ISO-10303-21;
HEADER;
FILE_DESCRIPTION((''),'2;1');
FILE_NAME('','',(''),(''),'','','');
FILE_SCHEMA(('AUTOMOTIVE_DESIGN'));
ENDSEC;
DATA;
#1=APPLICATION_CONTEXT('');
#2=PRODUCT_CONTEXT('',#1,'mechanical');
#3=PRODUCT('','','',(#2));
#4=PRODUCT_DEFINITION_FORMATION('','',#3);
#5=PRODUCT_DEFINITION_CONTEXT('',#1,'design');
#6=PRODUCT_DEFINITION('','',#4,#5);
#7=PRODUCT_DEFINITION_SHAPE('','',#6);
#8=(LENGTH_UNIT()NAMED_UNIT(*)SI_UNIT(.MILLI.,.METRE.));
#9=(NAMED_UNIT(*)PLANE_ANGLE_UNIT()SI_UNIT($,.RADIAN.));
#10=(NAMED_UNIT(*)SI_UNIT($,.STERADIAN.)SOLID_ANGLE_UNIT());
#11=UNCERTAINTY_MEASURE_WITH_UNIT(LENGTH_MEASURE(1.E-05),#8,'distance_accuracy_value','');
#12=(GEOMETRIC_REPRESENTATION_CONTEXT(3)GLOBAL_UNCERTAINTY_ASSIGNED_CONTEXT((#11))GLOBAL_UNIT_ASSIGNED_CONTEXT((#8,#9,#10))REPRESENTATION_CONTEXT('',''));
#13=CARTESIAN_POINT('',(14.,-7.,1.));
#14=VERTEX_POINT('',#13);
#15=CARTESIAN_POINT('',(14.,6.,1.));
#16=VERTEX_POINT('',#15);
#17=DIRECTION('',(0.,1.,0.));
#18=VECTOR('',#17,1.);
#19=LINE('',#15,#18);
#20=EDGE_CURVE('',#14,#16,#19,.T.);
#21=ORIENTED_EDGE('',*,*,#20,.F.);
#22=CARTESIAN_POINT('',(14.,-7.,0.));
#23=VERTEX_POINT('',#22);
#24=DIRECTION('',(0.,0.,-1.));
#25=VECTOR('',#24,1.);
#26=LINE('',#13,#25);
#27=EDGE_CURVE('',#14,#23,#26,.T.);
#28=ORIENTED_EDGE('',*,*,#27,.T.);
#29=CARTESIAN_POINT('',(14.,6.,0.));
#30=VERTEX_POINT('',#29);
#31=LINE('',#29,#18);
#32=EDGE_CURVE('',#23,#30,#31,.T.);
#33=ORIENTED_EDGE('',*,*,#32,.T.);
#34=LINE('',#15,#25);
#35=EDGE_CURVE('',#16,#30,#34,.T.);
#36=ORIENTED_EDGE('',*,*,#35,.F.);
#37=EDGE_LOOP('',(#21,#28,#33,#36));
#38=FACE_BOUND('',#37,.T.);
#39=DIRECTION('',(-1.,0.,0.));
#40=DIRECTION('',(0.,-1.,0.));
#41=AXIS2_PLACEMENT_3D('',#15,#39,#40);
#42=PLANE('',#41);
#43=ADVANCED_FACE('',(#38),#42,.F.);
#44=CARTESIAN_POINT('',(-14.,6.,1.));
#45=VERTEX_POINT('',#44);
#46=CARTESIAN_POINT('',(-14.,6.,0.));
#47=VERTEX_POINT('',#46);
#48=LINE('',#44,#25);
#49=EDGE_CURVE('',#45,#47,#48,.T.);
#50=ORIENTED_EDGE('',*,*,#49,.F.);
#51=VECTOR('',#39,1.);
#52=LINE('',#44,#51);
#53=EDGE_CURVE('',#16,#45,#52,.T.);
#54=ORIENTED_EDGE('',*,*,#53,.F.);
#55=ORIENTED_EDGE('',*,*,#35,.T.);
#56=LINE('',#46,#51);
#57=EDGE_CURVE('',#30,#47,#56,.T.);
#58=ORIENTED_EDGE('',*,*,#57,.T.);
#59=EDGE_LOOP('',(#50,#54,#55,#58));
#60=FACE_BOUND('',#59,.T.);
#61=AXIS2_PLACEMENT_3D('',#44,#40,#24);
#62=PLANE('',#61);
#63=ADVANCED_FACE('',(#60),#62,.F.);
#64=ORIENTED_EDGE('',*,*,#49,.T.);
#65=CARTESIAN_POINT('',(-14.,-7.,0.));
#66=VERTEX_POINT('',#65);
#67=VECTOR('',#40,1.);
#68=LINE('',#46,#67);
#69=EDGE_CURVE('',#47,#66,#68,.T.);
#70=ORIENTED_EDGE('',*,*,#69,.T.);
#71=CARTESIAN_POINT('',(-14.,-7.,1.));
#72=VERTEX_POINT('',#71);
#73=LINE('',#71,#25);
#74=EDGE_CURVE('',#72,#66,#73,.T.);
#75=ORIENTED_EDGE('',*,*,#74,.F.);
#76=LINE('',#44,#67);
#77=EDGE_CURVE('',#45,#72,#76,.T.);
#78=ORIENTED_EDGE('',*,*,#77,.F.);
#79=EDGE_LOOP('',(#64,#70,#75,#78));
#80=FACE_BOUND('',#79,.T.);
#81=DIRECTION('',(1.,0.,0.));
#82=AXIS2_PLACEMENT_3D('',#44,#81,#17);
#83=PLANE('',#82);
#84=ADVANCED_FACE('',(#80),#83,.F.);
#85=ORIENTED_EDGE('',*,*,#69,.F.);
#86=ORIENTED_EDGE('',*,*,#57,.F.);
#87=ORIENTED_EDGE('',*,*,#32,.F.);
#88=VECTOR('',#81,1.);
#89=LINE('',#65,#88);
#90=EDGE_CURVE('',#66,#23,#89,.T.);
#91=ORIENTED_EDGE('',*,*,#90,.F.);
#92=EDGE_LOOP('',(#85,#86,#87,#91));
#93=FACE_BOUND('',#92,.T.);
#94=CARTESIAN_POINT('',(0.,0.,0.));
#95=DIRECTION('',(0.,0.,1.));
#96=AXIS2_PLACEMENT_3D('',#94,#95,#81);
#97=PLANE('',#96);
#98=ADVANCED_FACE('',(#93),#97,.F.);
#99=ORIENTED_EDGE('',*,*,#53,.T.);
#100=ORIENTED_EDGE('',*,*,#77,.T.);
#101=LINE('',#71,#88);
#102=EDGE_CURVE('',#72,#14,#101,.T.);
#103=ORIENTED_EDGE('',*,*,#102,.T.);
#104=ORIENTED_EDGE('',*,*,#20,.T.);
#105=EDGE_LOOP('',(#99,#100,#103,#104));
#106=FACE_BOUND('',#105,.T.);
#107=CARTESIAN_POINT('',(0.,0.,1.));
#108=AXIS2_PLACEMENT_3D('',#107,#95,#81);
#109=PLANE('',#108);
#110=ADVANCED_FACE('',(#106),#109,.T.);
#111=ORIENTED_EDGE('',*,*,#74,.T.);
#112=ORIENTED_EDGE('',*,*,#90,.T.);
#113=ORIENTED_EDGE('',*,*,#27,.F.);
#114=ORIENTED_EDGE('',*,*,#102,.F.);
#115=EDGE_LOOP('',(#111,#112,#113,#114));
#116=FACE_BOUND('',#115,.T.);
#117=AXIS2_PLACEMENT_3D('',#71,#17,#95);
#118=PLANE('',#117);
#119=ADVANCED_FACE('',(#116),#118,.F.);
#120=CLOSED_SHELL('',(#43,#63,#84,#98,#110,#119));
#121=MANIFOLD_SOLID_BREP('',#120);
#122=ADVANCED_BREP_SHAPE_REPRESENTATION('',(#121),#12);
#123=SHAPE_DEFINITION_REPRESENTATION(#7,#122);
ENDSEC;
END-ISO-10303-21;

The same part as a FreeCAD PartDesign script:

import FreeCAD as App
import Part
import Sketcher


def add_polygon(sketch, points):
    """Adds a closed chain of lines whose ends are joined by coincident constraints."""
    first, n = sketch.GeometryCount, len(points)
    for a, b in zip(points, points[1:] + points[:1]):
        sketch.addGeometry(Part.LineSegment(App.Vector(*a, 0), App.Vector(*b, 0)), False)
    for i in range(n):
        sketch.addConstraint(Sketcher.Constraint("Coincident", first + i, 2, first + (i + 1) % n, 1))

doc = App.newDocument("Part")
body = doc.addObject("PartDesign::Body", "Body")

# Sketch on XY plane
sketch1 = doc.addObject("Sketcher::SketchObject", "Sketch")
body.addObject(sketch1)
sketch1.AttachmentSupport = (doc.XY_Plane, [""])
sketch1.MapMode = "FlatFace"
add_polygon(sketch1, [(-14, 6), (-14, -7), (14, -7), (14, 6)])  # lines 0-3
sketch1.addConstraint(Sketcher.Constraint("Vertical", 0))
sketch1.addConstraint(Sketcher.Constraint("Horizontal", 1))
sketch1.addConstraint(Sketcher.Constraint("Vertical", 2))
sketch1.addConstraint(Sketcher.Constraint("Horizontal", 3))
sketch1.addConstraint(Sketcher.Constraint("DistanceX", 1, 1, 1, 2, 28.0))
sketch1.addConstraint(Sketcher.Constraint("DistanceY", 0, 2, 0, 1, 13.0))
sketch1.addConstraint(Sketcher.Constraint("DistanceX", 0, 2, -1, 1, 14.0))
sketch1.addConstraint(Sketcher.Constraint("DistanceY", 0, 2, -1, 1, 7.0))
pad1 = doc.addObject("PartDesign::Pad", "Pad")
body.addObject(pad1)
pad1.Profile = sketch1
pad1.Length = 1

doc.recompute()
